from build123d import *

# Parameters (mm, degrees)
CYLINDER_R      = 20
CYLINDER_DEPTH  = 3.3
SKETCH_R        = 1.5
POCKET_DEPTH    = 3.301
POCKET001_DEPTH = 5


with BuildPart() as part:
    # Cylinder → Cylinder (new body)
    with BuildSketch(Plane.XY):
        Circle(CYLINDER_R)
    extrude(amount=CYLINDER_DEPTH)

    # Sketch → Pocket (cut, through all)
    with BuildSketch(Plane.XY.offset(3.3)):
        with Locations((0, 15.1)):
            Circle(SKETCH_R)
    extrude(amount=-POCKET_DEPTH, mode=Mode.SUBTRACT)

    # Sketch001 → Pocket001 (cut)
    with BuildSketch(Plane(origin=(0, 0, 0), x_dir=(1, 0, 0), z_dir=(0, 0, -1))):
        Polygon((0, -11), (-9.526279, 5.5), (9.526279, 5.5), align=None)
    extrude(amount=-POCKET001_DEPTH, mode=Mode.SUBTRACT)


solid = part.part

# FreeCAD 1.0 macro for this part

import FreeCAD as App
import Part
import Sketcher
from FreeCAD import Vector
Q = App.Units.Quantity

doc = App.newDocument("Part")
params = doc.addObject("Spreadsheet::Sheet", "Params")
for row, (alias, value) in enumerate([
    ("sketch1_diameter", "40 mm"),
    ("pad1_length", "3.3 mm"),
    ("sketch2_diameter", "3 mm"),
    ("pocket2_length", "5 mm"),
], start=1):
    params.set(f"A{row}", alias)
    params.set(f"B{row}", "=" + value)
    params.setAlias(f"B{row}", alias)

body = doc.addObject("PartDesign::Body", "Body")

# Sketch on XY plane
sketch1 = body.newObject("Sketcher::SketchObject", "Sketch")
sketch1.AttachmentSupport = (doc.getObject("XY_Plane"), [""])
sketch1.MapMode = "FlatFace"
sketch1.addGeometry(Part.Circle(Vector(0, 0, 0), Vector(0, 0, 1), 20), False)
sketch1.addConstraint([
    Sketcher.Constraint("Coincident", 0, 3, -1, 1),
    Sketcher.Constraint("Diameter", 0, 40.0),
])
sketch1.setExpression("Constraints[1]", "Params.sketch1_diameter")
pad1 = body.newObject("PartDesign::Pad", "Pad")
pad1.Profile = sketch1
pad1.setExpression("Length", "Params.pad1_length")

# Sketch on XY plane
sketch2 = body.newObject("Sketcher::SketchObject", "Sketch001")
sketch2.AttachmentSupport = (doc.getObject("XY_Plane"), [""])
sketch2.MapMode = "FlatFace"
sketch2.AttachmentOffset = App.Placement(Vector(0, 0, 3.3), App.Rotation())
sketch2.addGeometry(Part.Circle(Vector(0, 15.1, 0), Vector(0, 0, 1), 1.5), False)
sketch2.addConstraint([
    Sketcher.Constraint("PointOnObject", 0, 3, -2),
    Sketcher.Constraint("Diameter", 0, 3.0),
    Sketcher.Constraint("DistanceY", -1, 1, 0, 3, 15.1),
])
sketch2.setExpression("Constraints[1]", "Params.sketch2_diameter")
pocket1 = body.newObject("PartDesign::Pocket", "Pocket")
pocket1.Profile = sketch2
pocket1.Type = "ThroughAll"

# Sketch on XY plane
sketch3 = body.newObject("Sketcher::SketchObject", "Sketch002")
sketch3.AttachmentSupport = (doc.getObject("XY_Plane"), [""])
sketch3.MapMode = "FlatFace"
sketch3.addGeometry([
    Part.LineSegment(Vector(-10, -6, 0), Vector(0, 11, 0)),
    Part.LineSegment(Vector(0, 11, 0), Vector(10, -6, 0)),
    Part.LineSegment(Vector(10, -6, 0), Vector(-10, -6, 0)),
], False)
sketch3.addConstraint([
    Sketcher.Constraint("Coincident", 0, 2, 1, 1),
    Sketcher.Constraint("Coincident", 1, 2, 2, 1),
    Sketcher.Constraint("Coincident", 2, 2, 0, 1),
    Sketcher.Constraint("Horizontal", 2),
    Sketcher.Constraint("PointOnObject", 0, 2, -2),
    Sketcher.Constraint("Equal", 0, 1),
    Sketcher.Constraint("Angle", 0, Q("60.000001 deg")),
    Sketcher.Constraint("DistanceY", -1, 1, 0, 2, 11.0),
    Sketcher.Constraint("DistanceY", 1, 2, -1, 1, 5.5),
])
pocket2 = body.newObject("PartDesign::Pocket", "Pocket001")
pocket2.Profile = sketch3
pocket2.setExpression("Length", "Params.pocket2_length")
pocket2.Reversed = True

doc.recompute()
